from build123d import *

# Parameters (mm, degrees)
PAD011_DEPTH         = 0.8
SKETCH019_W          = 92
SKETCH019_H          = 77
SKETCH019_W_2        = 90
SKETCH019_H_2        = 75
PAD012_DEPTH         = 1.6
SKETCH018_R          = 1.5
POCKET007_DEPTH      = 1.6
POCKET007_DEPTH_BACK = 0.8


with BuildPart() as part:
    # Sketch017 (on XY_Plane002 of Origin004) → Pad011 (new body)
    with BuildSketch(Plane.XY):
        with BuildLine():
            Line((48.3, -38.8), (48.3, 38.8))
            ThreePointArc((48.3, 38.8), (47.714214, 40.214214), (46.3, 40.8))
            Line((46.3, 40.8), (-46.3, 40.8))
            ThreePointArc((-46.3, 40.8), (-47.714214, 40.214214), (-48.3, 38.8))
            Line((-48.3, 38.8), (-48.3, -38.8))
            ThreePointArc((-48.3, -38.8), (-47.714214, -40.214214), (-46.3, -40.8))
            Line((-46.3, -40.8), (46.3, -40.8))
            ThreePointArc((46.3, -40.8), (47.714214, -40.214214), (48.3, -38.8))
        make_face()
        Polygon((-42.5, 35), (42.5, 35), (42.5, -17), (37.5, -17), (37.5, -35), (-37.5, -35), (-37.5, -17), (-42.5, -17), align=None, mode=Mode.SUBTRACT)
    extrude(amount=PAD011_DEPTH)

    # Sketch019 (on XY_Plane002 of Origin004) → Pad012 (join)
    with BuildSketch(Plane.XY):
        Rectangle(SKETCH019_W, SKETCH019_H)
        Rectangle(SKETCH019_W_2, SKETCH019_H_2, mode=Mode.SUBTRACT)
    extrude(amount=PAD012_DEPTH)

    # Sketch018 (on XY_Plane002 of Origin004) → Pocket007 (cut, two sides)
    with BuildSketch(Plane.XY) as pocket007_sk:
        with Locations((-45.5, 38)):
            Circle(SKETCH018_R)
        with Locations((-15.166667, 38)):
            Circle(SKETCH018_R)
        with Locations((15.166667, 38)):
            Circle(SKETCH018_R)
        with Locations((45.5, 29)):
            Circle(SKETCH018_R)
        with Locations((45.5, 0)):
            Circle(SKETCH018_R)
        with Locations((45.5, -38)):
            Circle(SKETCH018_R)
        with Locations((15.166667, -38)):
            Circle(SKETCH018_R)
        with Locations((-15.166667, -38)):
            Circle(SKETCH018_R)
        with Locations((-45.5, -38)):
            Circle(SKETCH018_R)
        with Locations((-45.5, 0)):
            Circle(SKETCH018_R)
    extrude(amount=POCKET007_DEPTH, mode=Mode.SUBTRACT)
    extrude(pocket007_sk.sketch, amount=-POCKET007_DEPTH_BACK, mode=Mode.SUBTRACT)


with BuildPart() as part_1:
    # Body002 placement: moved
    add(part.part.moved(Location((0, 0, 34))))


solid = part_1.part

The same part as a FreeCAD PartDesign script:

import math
import FreeCAD as App
import Part
import Sketcher
Q = App.Units.Quantity

doc = App.newDocument("Part")
body = doc.addObject("PartDesign::Body", "Body")

# Sketch on XY plane
sketch1 = body.newObject("Sketcher::SketchObject", "Sketch")
sketch1.AttachmentSupport = (doc.getObject("XY_Plane"), [""])
sketch1.MapMode = "FlatFace"
sketch1.addGeometry(Part.LineSegment(App.Vector(48.3, -38.8, 0), App.Vector(48.3, 38.8, 0)), False)
sketch1.addGeometry(Part.ArcOfCircle(Part.Circle(App.Vector(46.3, 38.8, 0), App.Vector(0, 0, 1), 2), math.radians(0), math.radians(90)), False)
sketch1.addGeometry(Part.LineSegment(App.Vector(46.3, 40.8, 0), App.Vector(-46.3, 40.8, 0)), False)
sketch1.addGeometry(Part.ArcOfCircle(Part.Circle(App.Vector(-46.3, 38.8, 0), App.Vector(0, 0, 1), 2), math.radians(90), math.radians(180)), False)
sketch1.addGeometry(Part.LineSegment(App.Vector(-48.3, 38.8, 0), App.Vector(-48.3, -38.8, 0)), False)
sketch1.addGeometry(Part.ArcOfCircle(Part.Circle(App.Vector(-46.3, -38.8, 0), App.Vector(0, 0, 1), 2), math.radians(180), math.radians(270)), False)
sketch1.addGeometry(Part.LineSegment(App.Vector(-46.3, -40.8, 0), App.Vector(46.3, -40.8, 0)), False)
sketch1.addGeometry(Part.ArcOfCircle(Part.Circle(App.Vector(46.3, -38.8, 0), App.Vector(0, 0, 1), 2), math.radians(-90), math.radians(0)), False)
sketch1.addGeometry(Part.LineSegment(App.Vector(-42.5, -17, 0), App.Vector(-42.5, 35, 0)), False)
sketch1.addGeometry(Part.LineSegment(App.Vector(-42.5, 35, 0), App.Vector(42.5, 35, 0)), False)
sketch1.addGeometry(Part.LineSegment(App.Vector(42.5, 35, 0), App.Vector(42.5, -17, 0)), False)
sketch1.addGeometry(Part.LineSegment(App.Vector(42.5, -17, 0), App.Vector(37.5, -17, 0)), False)
sketch1.addGeometry(Part.LineSegment(App.Vector(37.5, -17, 0), App.Vector(37.5, -35, 0)), False)
sketch1.addGeometry(Part.LineSegment(App.Vector(37.5, -35, 0), App.Vector(-37.5, -35, 0)), False)
sketch1.addGeometry(Part.LineSegment(App.Vector(-37.5, -35, 0), App.Vector(-37.5, -17, 0)), False)
sketch1.addGeometry(Part.LineSegment(App.Vector(-37.5, -17, 0), App.Vector(-42.5, -17, 0)), False)
sketch1.addConstraint(Sketcher.Constraint("Tangent", 0, 2, 1, 1))
sketch1.addConstraint(Sketcher.Constraint("Tangent", 1, 2, 2, 1))
sketch1.addConstraint(Sketcher.Constraint("Tangent", 2, 2, 3, 1))
sketch1.addConstraint(Sketcher.Constraint("Tangent", 3, 2, 4, 1))
sketch1.addConstraint(Sketcher.Constraint("Tangent", 4, 2, 5, 1))
sketch1.addConstraint(Sketcher.Constraint("Tangent", 5, 2, 6, 1))
sketch1.addConstraint(Sketcher.Constraint("Tangent", 6, 2, 7, 1))
sketch1.addConstraint(Sketcher.Constraint("Tangent", 7, 2, 0, 1))
sketch1.addConstraint(Sketcher.Constraint("Coincident", 8, 2, 9, 1))
sketch1.addConstraint(Sketcher.Constraint("Coincident", 9, 2, 10, 1))
sketch1.addConstraint(Sketcher.Constraint("Coincident", 10, 2, 11, 1))
sketch1.addConstraint(Sketcher.Constraint("Coincident", 11, 2, 12, 1))
sketch1.addConstraint(Sketcher.Constraint("Coincident", 12, 2, 13, 1))
sketch1.addConstraint(Sketcher.Constraint("Coincident", 13, 2, 14, 1))
sketch1.addConstraint(Sketcher.Constraint("Coincident", 14, 2, 15, 1))
sketch1.addConstraint(Sketcher.Constraint("Coincident", 15, 2, 8, 1))
sketch1.addConstraint(Sketcher.Constraint("Vertical", 0))
sketch1.addConstraint(Sketcher.Constraint("Horizontal", 2))
sketch1.addConstraint(Sketcher.Constraint("Vertical", 4))
sketch1.addConstraint(Sketcher.Constraint("Horizontal", 6))
sketch1.addConstraint(Sketcher.Constraint("Vertical", 8))
sketch1.addConstraint(Sketcher.Constraint("Horizontal", 9))
sketch1.addConstraint(Sketcher.Constraint("Vertical", 10))
sketch1.addConstraint(Sketcher.Constraint("Horizontal", 11))
sketch1.addConstraint(Sketcher.Constraint("Vertical", 12))
sketch1.addConstraint(Sketcher.Constraint("Horizontal", 13))
sketch1.addConstraint(Sketcher.Constraint("Vertical", 14))
sketch1.addConstraint(Sketcher.Constraint("Horizontal", 15))
sketch1.addConstraint(Sketcher.Constraint("Equal", 1, 3))
sketch1.addConstraint(Sketcher.Constraint("Equal", 3, 5))
sketch1.addConstraint(Sketcher.Constraint("Equal", 5, 7))
sketch1.addConstraint(Sketcher.Constraint("Symmetric", 1, 3, 5, 3, -1, 1))
sketch1.addConstraint(Sketcher.Constraint("Symmetric", 11, 2, 14, 2, -2))
sketch1.addConstraint(Sketcher.Constraint("Equal", 11, 15))
sketch1.addConstraint(Sketcher.Constraint("Radius", 1, Q("1.999999 mm")))
sketch1.addConstraint(Sketcher.Constraint("DistanceX", 9, 1, 9, 2, Q("85 mm")))
sketch1.addConstraint(Sketcher.Constraint("DistanceX", 11, 2, 11, 1, Q("5 mm")))
sketch1.addConstraint(Sketcher.Constraint("DistanceY", 8, 1, 8, 2, Q("52 mm")))
sketch1.addConstraint(Sketcher.Constraint("DistanceY", 12, 2, 12, 1, Q("18 mm")))
sketch1.addConstraint(Sketcher.Constraint("DistanceX", 2, 2, 2, 1, Q("92.6 mm")))
sketch1.addConstraint(Sketcher.Constraint("DistanceY", 0, 1, 0, 2, Q("77.6 mm")))
sketch1.addConstraint(Sketcher.Constraint("DistanceY", -1, 1, 8, 2, Q("35 mm")))
pad1 = body.newObject("PartDesign::Pad", "Pad")
pad1.Profile = sketch1
pad1.Length = 0.8

# Sketch on XY plane
sketch2 = body.newObject("Sketcher::SketchObject", "Sketch001")
sketch2.AttachmentSupport = (doc.getObject("XY_Plane"), [""])
sketch2.MapMode = "FlatFace"
sketch2.addGeometry(Part.LineSegment(App.Vector(-46, 38, 0), App.Vector(-46, -38, 0)), False)
sketch2.addGeometry(Part.LineSegment(App.Vector(-46, -38, 0), App.Vector(46, -38, 0)), False)
sketch2.addGeometry(Part.LineSegment(App.Vector(46, -38, 0), App.Vector(46, 38, 0)), False)
sketch2.addGeometry(Part.LineSegment(App.Vector(46, 38, 0), App.Vector(-46, 38, 0)), False)
sketch2.addGeometry(Part.LineSegment(App.Vector(45, -38, 0), App.Vector(-45, -38, 0)), False)
sketch2.addGeometry(Part.LineSegment(App.Vector(-45, -38, 0), App.Vector(-45, 38, 0)), False)
sketch2.addGeometry(Part.LineSegment(App.Vector(-45, 38, 0), App.Vector(45, 38, 0)), False)
sketch2.addGeometry(Part.LineSegment(App.Vector(45, 38, 0), App.Vector(45, -38, 0)), False)
sketch2.addConstraint(Sketcher.Constraint("Coincident", 0, 2, 1, 1))
sketch2.addConstraint(Sketcher.Constraint("Coincident", 1, 2, 2, 1))
sketch2.addConstraint(Sketcher.Constraint("Coincident", 2, 2, 3, 1))
sketch2.addConstraint(Sketcher.Constraint("Coincident", 3, 2, 0, 1))
sketch2.addConstraint(Sketcher.Constraint("Coincident", 4, 2, 5, 1))
sketch2.addConstraint(Sketcher.Constraint("Coincident", 5, 2, 6, 1))
sketch2.addConstraint(Sketcher.Constraint("Coincident", 6, 2, 7, 1))
sketch2.addConstraint(Sketcher.Constraint("Coincident", 7, 2, 4, 1))
sketch2.addConstraint(Sketcher.Constraint("Vertical", 0))
sketch2.addConstraint(Sketcher.Constraint("Horizontal", 1))
sketch2.addConstraint(Sketcher.Constraint("Vertical", 2))
sketch2.addConstraint(Sketcher.Constraint("Horizontal", 3))
sketch2.addConstraint(Sketcher.Constraint("Horizontal", 4))
sketch2.addConstraint(Sketcher.Constraint("Vertical", 5))
sketch2.addConstraint(Sketcher.Constraint("Horizontal", 6))
sketch2.addConstraint(Sketcher.Constraint("Vertical", 7))
sketch2.addConstraint(Sketcher.Constraint("Symmetric", 0, 2, 2, 2, -1, 1))
sketch2.addConstraint(Sketcher.Constraint("Symmetric", 4, 2, 6, 2, -1, 1))
sketch2.addConstraint(Sketcher.Constraint("DistanceX", 1, 1, 1, 2, Q("92 mm")))
sketch2.addConstraint(Sketcher.Constraint("DistanceX", 4, 2, 4, 1, Q("90 mm")))
sketch2.addConstraint(Sketcher.Constraint("DistanceY", 0, 2, 0, 1, Q("77 mm")))
sketch2.addConstraint(Sketcher.Constraint("DistanceY", 5, 1, 5, 2, Q("75 mm")))
pad2 = body.newObject("PartDesign::Pad", "Pad001")
pad2.Profile = sketch2
pad2.Length = 1.6

# Sketch on XY plane
sketch3 = body.newObject("Sketcher::SketchObject", "Sketch002")
sketch3.AttachmentSupport = (doc.getObject("XY_Plane"), [""])
sketch3.MapMode = "FlatFace"
sketch3.addGeometry(Part.Circle(App.Vector(-45.5, 38, 0), App.Vector(0, 0, 1), 1.5), False)
sketch3.addGeometry(Part.Circle(App.Vector(-15.2, 38, 0), App.Vector(0, 0, 1), 1.5), False)
sketch3.addGeometry(Part.Circle(App.Vector(15.2, 38, 0), App.Vector(0, 0, 1), 1.5), False)
sketch3.addGeometry(Part.Circle(App.Vector(45.5, 29, 0), App.Vector(0, 0, 1), 1.5), False)
sketch3.addGeometry(Part.Circle(App.Vector(45.5, 0, 0), App.Vector(0, 0, 1), 1.5), False)
sketch3.addGeometry(Part.Circle(App.Vector(45.5, -38, 0), App.Vector(0, 0, 1), 1.5), False)
sketch3.addGeometry(Part.Circle(App.Vector(15.2, -38, 0), App.Vector(0, 0, 1), 1.5), False)
sketch3.addGeometry(Part.Circle(App.Vector(-15.2, -38, 0), App.Vector(0, 0, 1), 1.5), False)
sketch3.addGeometry(Part.Circle(App.Vector(-45.5, -38, 0), App.Vector(0, 0, 1), 1.5), False)
sketch3.addGeometry(Part.Circle(App.Vector(-45.5, 0, 0), App.Vector(0, 0, 1), 1.5), False)
sketch3.addConstraint(Sketcher.Constraint("Equal", 0, 1))
sketch3.addConstraint(Sketcher.Constraint("Equal", 1, 2))
sketch3.addConstraint(Sketcher.Constraint("Equal", 2, 3))
sketch3.addConstraint(Sketcher.Constraint("Equal", 3, 4))
sketch3.addConstraint(Sketcher.Constraint("Equal", 4, 5))
sketch3.addConstraint(Sketcher.Constraint("Equal", 5, 6))
sketch3.addConstraint(Sketcher.Constraint("Equal", 6, 7))
sketch3.addConstraint(Sketcher.Constraint("Equal", 7, 8))
sketch3.addConstraint(Sketcher.Constraint("Equal", 8, 9))
sketch3.addConstraint(Sketcher.Constraint("Symmetric", 0, 3, 5, 3, -1, 1))
sketch3.addConstraint(Sketcher.Constraint("Symmetric", 1, 3, 6, 3, -1, 1))
sketch3.addConstraint(Sketcher.Constraint("Symmetric", 2, 3, 7, 3, -1, 1))
sketch3.addConstraint(Sketcher.Constraint("Symmetric", 4, 3, 9, 3, -1, 1))
sketch3.addConstraint(Sketcher.Constraint("Symmetric", 1, 3, 2, 3, -2))
sketch3.addConstraint(Sketcher.Constraint("Symmetric", 5, 3, 8, 3, -2))
sketch3.addConstraint(Sketcher.Constraint("PointOnObject", 4, 3, -1))
sketch3.addConstraint(Sketcher.Constraint("Horizontal", 0, 3, 1, 3))
sketch3.addConstraint(Sketcher.Constraint("Vertical", 3, 3, 4, 3))
sketch3.addConstraint(Sketcher.Constraint("Vertical", 4, 3, 5, 3))
sketch3.addConstraint(Sketcher.Constraint("Diameter", 0, Q("3 mm")))
sketch3.addConstraint(Sketcher.Constraint("DistanceY", -1, 1, 0, 3, Q("38 mm")))
sketch3.addConstraint(Sketcher.Constraint("DistanceY", -1, 1, 3, 3, Q("29 mm")))
sketch3.addConstraint(Sketcher.Constraint("DistanceX", 0, 3, 3, 3, Q("91 mm")))
sketch3.addConstraint(Sketcher.Constraint("DistanceX", 1, 3, -1, 1, Q("15.166667 mm")))
pocket1 = body.newObject("PartDesign::Pocket", "Pocket")
pocket1.Profile = sketch3
pocket1.Type = "ThroughAll"
pocket1.Midplane = True
body2 = doc.addObject("PartDesign::Body", "Body001")
doc.recompute()

body.Placement = App.Placement(App.Vector(0, 0, 34), App.Rotation(App.Vector(0, 0, 1), 0))
boolean = body2.newObject("PartDesign::Boolean", "Boolean")
boolean.Type = "Fuse"
boolean.addObjects([body])

doc.recompute()
